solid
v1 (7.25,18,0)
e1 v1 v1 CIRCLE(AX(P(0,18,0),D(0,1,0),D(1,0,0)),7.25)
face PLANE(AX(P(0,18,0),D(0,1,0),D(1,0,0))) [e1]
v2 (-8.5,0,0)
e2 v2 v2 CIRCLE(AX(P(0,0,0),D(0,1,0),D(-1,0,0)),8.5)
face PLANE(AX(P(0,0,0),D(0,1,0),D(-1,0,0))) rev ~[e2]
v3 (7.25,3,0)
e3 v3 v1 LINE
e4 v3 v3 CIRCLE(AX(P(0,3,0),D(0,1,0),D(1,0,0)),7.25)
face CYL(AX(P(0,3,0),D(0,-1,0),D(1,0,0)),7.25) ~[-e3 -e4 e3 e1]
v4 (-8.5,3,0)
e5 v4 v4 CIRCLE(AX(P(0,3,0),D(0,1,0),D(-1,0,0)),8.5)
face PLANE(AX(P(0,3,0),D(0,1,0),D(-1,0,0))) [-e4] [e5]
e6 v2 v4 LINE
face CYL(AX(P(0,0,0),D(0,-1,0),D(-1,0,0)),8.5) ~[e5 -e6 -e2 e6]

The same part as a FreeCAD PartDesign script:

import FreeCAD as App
import Part
import Sketcher

V = App.Vector
Q = App.Units.Quantity

doc = App.newDocument("Part")
body = doc.addObject("PartDesign::Body", "Body")

# Sketch on XZ plane
sketch1 = doc.addObject("Sketcher::SketchObject", "Sketch")
body.addObject(sketch1)
sketch1.AttachmentSupport = (doc.XZ_Plane, [""])
sketch1.MapMode = "FlatFace"
sketch1.addGeometry(Part.Circle(V(0, 0, 0), V(0, 0, 1), 8), False)
sketch1.addConstraint([
    Sketcher.Constraint("Coincident", 0, 3, -1, 1),
    Sketcher.Constraint("Diameter", 0, Q("17 mm")),
])
pad1 = doc.addObject("PartDesign::Pad", "Pad")
body.addObject(pad1)
pad1.Profile = sketch1
pad1.Length = 3
pad1.Reversed = True

# Sketch on XZ plane
sketch2 = doc.addObject("Sketcher::SketchObject", "Sketch001")
body.addObject(sketch2)
sketch2.AttachmentSupport = (doc.XZ_Plane, [""])
sketch2.MapMode = "FlatFace"
sketch2.AttachmentOffset = App.Placement(V(0, 0, -3), App.Rotation())
sketch2.addGeometry(Part.Circle(V(0, 0, 0), V(0, 0, 1), 7), False)
sketch2.addConstraint([
    Sketcher.Constraint("Coincident", 0, 3, -1, 1),
    Sketcher.Constraint("Diameter", 0, Q("14.5 mm")),
])
pad2 = doc.addObject("PartDesign::Pad", "Pad001")
body.addObject(pad2)
pad2.Profile = sketch2
pad2.Length = 15
pad2.Reversed = True

doc.recompute()
